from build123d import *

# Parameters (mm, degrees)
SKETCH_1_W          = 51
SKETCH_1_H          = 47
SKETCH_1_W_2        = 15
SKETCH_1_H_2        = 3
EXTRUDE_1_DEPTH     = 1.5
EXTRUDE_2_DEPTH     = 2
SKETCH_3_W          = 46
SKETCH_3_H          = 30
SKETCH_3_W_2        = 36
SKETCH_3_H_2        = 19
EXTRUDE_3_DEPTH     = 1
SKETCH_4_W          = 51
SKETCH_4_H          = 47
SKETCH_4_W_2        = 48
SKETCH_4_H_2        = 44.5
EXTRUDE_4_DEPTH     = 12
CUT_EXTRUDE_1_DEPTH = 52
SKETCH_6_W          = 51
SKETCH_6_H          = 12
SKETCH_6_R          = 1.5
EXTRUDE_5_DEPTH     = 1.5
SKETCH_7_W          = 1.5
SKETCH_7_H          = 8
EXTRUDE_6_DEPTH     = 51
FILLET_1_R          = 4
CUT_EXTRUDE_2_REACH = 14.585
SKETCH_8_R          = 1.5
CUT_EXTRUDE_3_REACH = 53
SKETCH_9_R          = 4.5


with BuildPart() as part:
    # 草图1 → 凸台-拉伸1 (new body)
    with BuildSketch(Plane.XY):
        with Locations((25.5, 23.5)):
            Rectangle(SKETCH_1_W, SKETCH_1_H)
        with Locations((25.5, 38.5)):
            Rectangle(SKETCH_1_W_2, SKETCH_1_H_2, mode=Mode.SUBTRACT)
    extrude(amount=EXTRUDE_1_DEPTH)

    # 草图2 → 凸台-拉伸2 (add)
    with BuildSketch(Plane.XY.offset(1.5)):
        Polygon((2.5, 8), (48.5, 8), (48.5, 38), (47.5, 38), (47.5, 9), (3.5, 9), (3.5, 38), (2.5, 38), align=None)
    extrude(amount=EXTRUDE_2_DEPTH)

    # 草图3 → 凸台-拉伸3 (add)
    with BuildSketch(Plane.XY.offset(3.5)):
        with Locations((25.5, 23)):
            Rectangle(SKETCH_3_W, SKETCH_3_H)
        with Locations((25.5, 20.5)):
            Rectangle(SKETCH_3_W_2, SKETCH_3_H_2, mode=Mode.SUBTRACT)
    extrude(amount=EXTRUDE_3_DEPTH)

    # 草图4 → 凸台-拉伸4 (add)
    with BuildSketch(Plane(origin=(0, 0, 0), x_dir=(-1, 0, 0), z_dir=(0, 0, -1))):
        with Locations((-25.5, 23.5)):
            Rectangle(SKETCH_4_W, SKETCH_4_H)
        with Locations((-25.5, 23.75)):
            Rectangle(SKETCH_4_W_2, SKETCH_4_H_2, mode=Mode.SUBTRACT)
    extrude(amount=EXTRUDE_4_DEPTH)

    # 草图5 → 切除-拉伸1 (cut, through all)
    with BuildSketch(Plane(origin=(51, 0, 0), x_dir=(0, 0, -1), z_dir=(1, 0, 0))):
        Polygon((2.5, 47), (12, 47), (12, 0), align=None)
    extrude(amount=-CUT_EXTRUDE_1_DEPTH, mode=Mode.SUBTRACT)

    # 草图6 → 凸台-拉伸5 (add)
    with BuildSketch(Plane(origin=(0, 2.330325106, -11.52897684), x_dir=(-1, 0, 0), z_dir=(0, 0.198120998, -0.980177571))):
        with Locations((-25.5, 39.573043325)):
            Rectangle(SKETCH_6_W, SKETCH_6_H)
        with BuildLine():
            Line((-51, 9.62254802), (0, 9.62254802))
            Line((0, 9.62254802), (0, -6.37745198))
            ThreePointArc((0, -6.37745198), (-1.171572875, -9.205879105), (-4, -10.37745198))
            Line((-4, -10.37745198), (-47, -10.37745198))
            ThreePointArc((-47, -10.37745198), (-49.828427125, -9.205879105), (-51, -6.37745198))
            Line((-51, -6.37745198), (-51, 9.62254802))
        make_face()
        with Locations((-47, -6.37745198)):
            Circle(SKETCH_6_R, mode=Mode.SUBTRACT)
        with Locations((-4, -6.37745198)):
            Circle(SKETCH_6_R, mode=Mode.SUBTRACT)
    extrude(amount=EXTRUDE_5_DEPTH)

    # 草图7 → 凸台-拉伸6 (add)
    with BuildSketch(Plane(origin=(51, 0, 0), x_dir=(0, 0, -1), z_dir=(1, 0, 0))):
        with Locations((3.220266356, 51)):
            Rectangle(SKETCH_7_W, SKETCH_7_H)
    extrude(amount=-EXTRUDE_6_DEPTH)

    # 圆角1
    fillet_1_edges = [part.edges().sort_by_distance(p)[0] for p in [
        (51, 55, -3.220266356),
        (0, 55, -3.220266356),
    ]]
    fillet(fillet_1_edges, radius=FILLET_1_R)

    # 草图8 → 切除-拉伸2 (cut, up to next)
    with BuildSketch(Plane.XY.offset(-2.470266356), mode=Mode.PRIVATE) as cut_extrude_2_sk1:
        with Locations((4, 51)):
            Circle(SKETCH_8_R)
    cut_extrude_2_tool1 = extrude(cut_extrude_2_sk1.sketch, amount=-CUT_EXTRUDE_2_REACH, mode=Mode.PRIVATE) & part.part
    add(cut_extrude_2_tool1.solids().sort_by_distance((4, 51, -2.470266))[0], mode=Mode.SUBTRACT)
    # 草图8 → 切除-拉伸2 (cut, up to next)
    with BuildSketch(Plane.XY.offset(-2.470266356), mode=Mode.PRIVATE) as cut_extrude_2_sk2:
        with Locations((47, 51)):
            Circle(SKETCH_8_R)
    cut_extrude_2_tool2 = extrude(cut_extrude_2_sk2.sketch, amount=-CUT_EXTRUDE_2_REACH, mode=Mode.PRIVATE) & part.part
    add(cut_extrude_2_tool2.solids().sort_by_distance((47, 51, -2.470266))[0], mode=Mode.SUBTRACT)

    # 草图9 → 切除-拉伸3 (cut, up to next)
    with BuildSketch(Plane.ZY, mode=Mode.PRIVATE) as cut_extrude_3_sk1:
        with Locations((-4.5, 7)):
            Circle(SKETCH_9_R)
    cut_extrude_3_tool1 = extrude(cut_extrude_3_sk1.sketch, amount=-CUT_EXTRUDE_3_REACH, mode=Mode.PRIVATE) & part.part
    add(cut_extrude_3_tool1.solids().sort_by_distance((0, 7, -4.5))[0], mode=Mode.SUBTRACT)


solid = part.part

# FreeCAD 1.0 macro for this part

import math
import FreeCAD as App
import Part
import Sketcher


def edges_at(feature, points):
    """Names of the edges that pass closest to the given points."""
    edges = feature.Shape.Edges
    near = lambda p: min(range(len(edges)), key=lambda i: edges[i].distToShape(Part.Vertex(*p))[0])
    return sorted({f"Edge{near(p) + 1}" for p in points})

doc = App.newDocument("Part")
body = doc.addObject("PartDesign::Body", "Body")

# Sketch on XY plane
sketch1 = doc.addObject("Sketcher::SketchObject", "Sketch")
body.addObject(sketch1)
sketch1.AttachmentSupport = (doc.XY_Plane, [""])
sketch1.MapMode = "FlatFace"
sketch1.addGeometry([
    Part.LineSegment(App.Vector(0, 47, 0), App.Vector(0, 0, 0)),  # 0
    Part.LineSegment(App.Vector(0, 0, 0), App.Vector(51, 0, 0)),  # 1
    Part.LineSegment(App.Vector(51, 0, 0), App.Vector(51, 47, 0)),  # 2
    Part.LineSegment(App.Vector(51, 47, 0), App.Vector(0, 47, 0)),  # 3
    Part.LineSegment(App.Vector(33, 37, 0), App.Vector(18, 37, 0)),  # 4
    Part.LineSegment(App.Vector(18, 37, 0), App.Vector(18, 40, 0)),  # 5
    Part.LineSegment(App.Vector(18, 40, 0), App.Vector(33, 40, 0)),  # 6
    Part.LineSegment(App.Vector(33, 40, 0), App.Vector(33, 37, 0)),  # 7
], False)
sketch1.addConstraint([
    Sketcher.Constraint("Coincident", 0, 2, 1, 1),
    Sketcher.Constraint("Coincident", 1, 2, 2, 1),
    Sketcher.Constraint("Coincident", 2, 2, 3, 1),
    Sketcher.Constraint("Coincident", 3, 2, 0, 1),
    Sketcher.Constraint("Coincident", 4, 2, 5, 1),
    Sketcher.Constraint("Coincident", 5, 2, 6, 1),
    Sketcher.Constraint("Coincident", 6, 2, 7, 1),
    Sketcher.Constraint("Coincident", 7, 2, 4, 1),
    Sketcher.Constraint("Vertical", 0),
    Sketcher.Constraint("Horizontal", 1),
    Sketcher.Constraint("Vertical", 2),
    Sketcher.Constraint("Horizontal", 3),
    Sketcher.Constraint("Horizontal", 4),
    Sketcher.Constraint("Vertical", 5),
    Sketcher.Constraint("Horizontal", 6),
    Sketcher.Constraint("Vertical", 7),
    Sketcher.Constraint("Coincident", 0, 2, -1, 1),
    Sketcher.Constraint("DistanceX", 1, 1, 1, 2, 51.0),
    Sketcher.Constraint("DistanceX", 4, 2, 4, 1, 15.0),
    Sketcher.Constraint("DistanceY", 0, 2, 0, 1, 47.0),
    Sketcher.Constraint("DistanceY", 5, 1, 5, 2, 3.0),
    Sketcher.Constraint("DistanceX", -1, 1, 4, 2, 18.0),
    Sketcher.Constraint("DistanceY", -1, 1, 4, 2, 37.0),
])
pad1 = doc.addObject("PartDesign::Pad", "Pad")
body.addObject(pad1)
pad1.Profile = sketch1
pad1.Length = 1.5

# Sketch on XY plane
sketch2 = doc.addObject("Sketcher::SketchObject", "Sketch001")
body.addObject(sketch2)
sketch2.AttachmentSupport = (doc.XY_Plane, [""])
sketch2.MapMode = "FlatFace"
sketch2.AttachmentOffset = App.Placement(App.Vector(0, 0, 1.5), App.Rotation())
sketch2.addGeometry([
    Part.LineSegment(App.Vector(2.5, 8, 0), App.Vector(48.5, 8, 0)),  # 0
    Part.LineSegment(App.Vector(48.5, 8, 0), App.Vector(48.5, 38, 0)),  # 1
    Part.LineSegment(App.Vector(48.5, 38, 0), App.Vector(47.5, 38, 0)),  # 2
    Part.LineSegment(App.Vector(47.5, 38, 0), App.Vector(47.5, 9, 0)),  # 3
    Part.LineSegment(App.Vector(47.5, 9, 0), App.Vector(3.5, 9, 0)),  # 4
    Part.LineSegment(App.Vector(3.5, 9, 0), App.Vector(3.5, 38, 0)),  # 5
    Part.LineSegment(App.Vector(3.5, 38, 0), App.Vector(2.5, 38, 0)),  # 6
    Part.LineSegment(App.Vector(2.5, 38, 0), App.Vector(2.5, 8, 0)),  # 7
], False)
sketch2.addConstraint([
    Sketcher.Constraint("Coincident", 0, 2, 1, 1),
    Sketcher.Constraint("Coincident", 1, 2, 2, 1),
    Sketcher.Constraint("Coincident", 2, 2, 3, 1),
    Sketcher.Constraint("Coincident", 3, 2, 4, 1),
    Sketcher.Constraint("Coincident", 4, 2, 5, 1),
    Sketcher.Constraint("Coincident", 5, 2, 6, 1),
    Sketcher.Constraint("Coincident", 6, 2, 7, 1),
    Sketcher.Constraint("Coincident", 7, 2, 0, 1),
    Sketcher.Constraint("Horizontal", 0),
    Sketcher.Constraint("Vertical", 1),
    Sketcher.Constraint("Horizontal", 2),
    Sketcher.Constraint("Vertical", 3),
    Sketcher.Constraint("Horizontal", 4),
    Sketcher.Constraint("Vertical", 5),
    Sketcher.Constraint("Horizontal", 6),
    Sketcher.Constraint("Vertical", 7),
    Sketcher.Constraint("Horizontal", 2, 2, 5, 2),
    Sketcher.Constraint("Equal", 2, 6),
    Sketcher.Constraint("DistanceX", 0, 1, 0, 2, 46.0),
    Sketcher.Constraint("DistanceX", 2, 2, 2, 1, 1.0),
    Sketcher.Constraint("DistanceY", 1, 1, 1, 2, 30.0),
    Sketcher.Constraint("DistanceY", 3, 2, 3, 1, 29.0),
    Sketcher.Constraint("DistanceY", -1, 1, 0, 2, 8.0),
    Sketcher.Constraint("DistanceX", -1, 1, 0, 2, 48.5),
])
pad2 = doc.addObject("PartDesign::Pad", "Pad001")
body.addObject(pad2)
pad2.Profile = sketch2
pad2.Length = 2

# Sketch on XY plane
sketch3 = doc.addObject("Sketcher::SketchObject", "Sketch002")
body.addObject(sketch3)
sketch3.AttachmentSupport = (doc.XY_Plane, [""])
sketch3.MapMode = "FlatFace"
sketch3.AttachmentOffset = App.Placement(App.Vector(0, 0, 3.5), App.Rotation())
sketch3.addGeometry([
    Part.LineSegment(App.Vector(2, 38, 0), App.Vector(2, 8, 0)),  # 0
    Part.LineSegment(App.Vector(2, 8, 0), App.Vector(48, 8, 0)),  # 1
    Part.LineSegment(App.Vector(48, 8, 0), App.Vector(48, 38, 0)),  # 2
    Part.LineSegment(App.Vector(48, 38, 0), App.Vector(2, 38, 0)),  # 3
    Part.LineSegment(App.Vector(44, 11, 0), App.Vector(8, 11, 0)),  # 4
    Part.LineSegment(App.Vector(8, 11, 0), App.Vector(8, 30, 0)),  # 5
    Part.LineSegment(App.Vector(8, 30, 0), App.Vector(44, 30, 0)),  # 6
    Part.LineSegment(App.Vector(44, 30, 0), App.Vector(44, 11, 0)),  # 7
], False)
sketch3.addConstraint([
    Sketcher.Constraint("Coincident", 0, 2, 1, 1),
    Sketcher.Constraint("Coincident", 1, 2, 2, 1),
    Sketcher.Constraint("Coincident", 2, 2, 3, 1),
    Sketcher.Constraint("Coincident", 3, 2, 0, 1),
    Sketcher.Constraint("Coincident", 4, 2, 5, 1),
    Sketcher.Constraint("Coincident", 5, 2, 6, 1),
    Sketcher.Constraint("Coincident", 6, 2, 7, 1),
    Sketcher.Constraint("Coincident", 7, 2, 4, 1),
    Sketcher.Constraint("Vertical", 0),
    Sketcher.Constraint("Horizontal", 1),
    Sketcher.Constraint("Vertical", 2),
    Sketcher.Constraint("Horizontal", 3),
    Sketcher.Constraint("Horizontal", 4),
    Sketcher.Constraint("Vertical", 5),
    Sketcher.Constraint("Horizontal", 6),
    Sketcher.Constraint("Vertical", 7),
    Sketcher.Constraint("DistanceX", 1, 1, 1, 2, 46.0),
    Sketcher.Constraint("DistanceX", 4, 2, 4, 1, 36.0),
    Sketcher.Constraint("DistanceY", 0, 2, 0, 1, 30.0),
    Sketcher.Constraint("DistanceY", 5, 1, 5, 2, 19.0),
    Sketcher.Constraint("DistanceY", -1, 1, 0, 2, 8.0),
    Sketcher.Constraint("DistanceY", -1, 1, 4, 2, 11.0),
    Sketcher.Constraint("DistanceX", 0, 2, 4, 2, 5.0),
    Sketcher.Constraint("DistanceX", -1, 1, 0, 2, 2.5),
])
pad3 = doc.addObject("PartDesign::Pad", "Pad002")
body.addObject(pad3)
pad3.Profile = sketch3
pad3.Length = 1

# Sketch on XY plane
sketch4 = doc.addObject("Sketcher::SketchObject", "Sketch003")
body.addObject(sketch4)
sketch4.AttachmentSupport = (doc.XY_Plane, [""])
sketch4.MapMode = "FlatFace"
sketch4.addGeometry([
    Part.LineSegment(App.Vector(51, 47, 0), App.Vector(51, 0, 0)),  # 0
    Part.LineSegment(App.Vector(51, 0, 0), App.Vector(0, 0, 0)),  # 1
    Part.LineSegment(App.Vector(0, 0, 0), App.Vector(0, 47, 0)),  # 2
    Part.LineSegment(App.Vector(0, 47, 0), App.Vector(51, 47, 0)),  # 3
    Part.LineSegment(App.Vector(2, 2, 0), App.Vector(50, 2, 0)),  # 4
    Part.LineSegment(App.Vector(50, 2, 0), App.Vector(50, 46, 0)),  # 5
    Part.LineSegment(App.Vector(50, 46, 0), App.Vector(2, 46, 0)),  # 6
    Part.LineSegment(App.Vector(2, 46, 0), App.Vector(2, 2, 0)),  # 7
], False)
sketch4.addConstraint([
    Sketcher.Constraint("Coincident", 0, 2, 1, 1),
    Sketcher.Constraint("Coincident", 1, 2, 2, 1),
    Sketcher.Constraint("Coincident", 2, 2, 3, 1),
    Sketcher.Constraint("Coincident", 3, 2, 0, 1),
    Sketcher.Constraint("Coincident", 4, 2, 5, 1),
    Sketcher.Constraint("Coincident", 5, 2, 6, 1),
    Sketcher.Constraint("Coincident", 6, 2, 7, 1),
    Sketcher.Constraint("Coincident", 7, 2, 4, 1),
    Sketcher.Constraint("Vertical", 0),
    Sketcher.Constraint("Horizontal", 1),
    Sketcher.Constraint("Vertical", 2),
    Sketcher.Constraint("Horizontal", 3),
    Sketcher.Constraint("Horizontal", 4),
    Sketcher.Constraint("Vertical", 5),
    Sketcher.Constraint("Horizontal", 6),
    Sketcher.Constraint("Vertical", 7),
    Sketcher.Constraint("Coincident", 1, 2, -1, 1),
    Sketcher.Constraint("DistanceX", 1, 2, 1, 1, 51.0),
    Sketcher.Constraint("DistanceX", 4, 1, 4, 2, 48.0),
    Sketcher.Constraint("DistanceY", 0, 2, 0, 1, 47.0),
    Sketcher.Constraint("DistanceY", 5, 1, 5, 2, 44.5),
    Sketcher.Constraint("DistanceY", -1, 1, 5, 2, 46.0),
    Sketcher.Constraint("DistanceX", -1, 1, 4, 2, 49.5),
])
pad4 = doc.addObject("PartDesign::Pad", "Pad003")
body.addObject(pad4)
pad4.Profile = sketch4
pad4.Length = 12
pad4.Reversed = True

# Sketch on YZ plane
sketch5 = doc.addObject("Sketcher::SketchObject", "Sketch004")
body.addObject(sketch5)
sketch5.AttachmentSupport = (doc.YZ_Plane, [""])
sketch5.MapMode = "FlatFace"
sketch5.AttachmentOffset = App.Placement(App.Vector(0, 0, 51), App.Rotation())
sketch5.addGeometry([
    Part.LineSegment(App.Vector(47, -12, 0), App.Vector(47, -2, 0)),
    Part.LineSegment(App.Vector(47, -2, 0), App.Vector(0, -12, 0)),
    Part.LineSegment(App.Vector(0, -12, 0), App.Vector(47, -12, 0)),
], False)
sketch5.addConstraint([
    Sketcher.Constraint("Coincident", 0, 2, 1, 1),
    Sketcher.Constraint("Coincident", 1, 2, 2, 1),
    Sketcher.Constraint("Coincident", 2, 2, 0, 1),
    Sketcher.Constraint("Vertical", 0),
    Sketcher.Constraint("Horizontal", 2),
    Sketcher.Constraint("PointOnObject", 1, 2, -2),
    Sketcher.Constraint("DistanceX", 2, 1, 2, 2, 47.0),
    Sketcher.Constraint("DistanceY", 0, 1, 0, 2, 9.5),
    Sketcher.Constraint("DistanceY", 1, 2, -1, 1, 12.0),
])
pocket1 = doc.addObject("PartDesign::Pocket", "Pocket")
body.addObject(pocket1)
pocket1.Profile = sketch5
pocket1.Type = "ThroughAll"

# Sketch on an angled plane
sketch6 = doc.addObject("Sketcher::SketchObject", "Sketch005")
body.addObject(sketch6)
sketch6.Placement = App.Placement(App.Vector(0, 2.330325, -11.528977), App.Rotation(App.Vector(-1, 0, 0), App.Vector(0, 0.980177571, 0.198120998), App.Vector(0, 0.198120998, -0.980177571), "ZXY"))
sketch6.addGeometry([
    Part.LineSegment(App.Vector(-51, 45.6, 0), App.Vector(-51, 33.6, 0)),  # 0
    Part.LineSegment(App.Vector(-51, 33.6, 0), App.Vector(0, 33.6, 0)),  # 1
    Part.LineSegment(App.Vector(0, 33.6, 0), App.Vector(0, 45.6, 0)),  # 2
    Part.LineSegment(App.Vector(0, 45.6, 0), App.Vector(-51, 45.6, 0)),  # 3
    Part.LineSegment(App.Vector(0, 9.6, 0), App.Vector(-51, 9.6, 0)),  # 4
    Part.LineSegment(App.Vector(-51, 9.6, 0), App.Vector(-51, -6.4, 0)),  # 5
    Part.ArcOfCircle(Part.Circle(App.Vector(-47, -6.4, 0), App.Vector(0, 0, 1), 4), math.radians(180), math.radians(270)),  # 6
    Part.LineSegment(App.Vector(-47, -10.4, 0), App.Vector(-4, -10.4, 0)),  # 7
    Part.ArcOfCircle(Part.Circle(App.Vector(-4, -6.4, 0), App.Vector(0, 0, 1), 4), math.radians(-90), math.radians(0)),  # 8
    Part.LineSegment(App.Vector(0, -6.4, 0), App.Vector(0, 9.6, 0)),  # 9
    Part.Circle(App.Vector(-4, -6.4, 0), App.Vector(0, 0, 1), 1.5),  # 10
    Part.Circle(App.Vector(-47, -6.4, 0), App.Vector(0, 0, 1), 1.5),  # 11
], False)
sketch6.addConstraint([
    Sketcher.Constraint("Coincident", 0, 2, 1, 1),
    Sketcher.Constraint("Coincident", 1, 2, 2, 1),
    Sketcher.Constraint("Coincident", 2, 2, 3, 1),
    Sketcher.Constraint("Coincident", 3, 2, 0, 1),
    Sketcher.Constraint("Coincident", 4, 2, 5, 1),
    Sketcher.Constraint("Tangent", 5, 2, 6, 1),
    Sketcher.Constraint("Tangent", 6, 2, 7, 1),
    Sketcher.Constraint("Tangent", 7, 2, 8, 1),
    Sketcher.Constraint("Tangent", 8, 2, 9, 1),
    Sketcher.Constraint("Coincident", 9, 2, 4, 1),
    Sketcher.Constraint("Vertical", 0),
    Sketcher.Constraint("Horizontal", 1),
    Sketcher.Constraint("Vertical", 2),
    Sketcher.Constraint("Horizontal", 3),
    Sketcher.Constraint("Horizontal", 4),
    Sketcher.Constraint("Vertical", 5),
    Sketcher.Constraint("Horizontal", 7),
    Sketcher.Constraint("Vertical", 9),
    Sketcher.Constraint("Coincident", 10, 3, 8, 3),
    Sketcher.Constraint("Coincident", 11, 3, 6, 3),
    Sketcher.Constraint("Equal", 6, 8),
    Sketcher.Constraint("Equal", 10, 11),
    Sketcher.Constraint("PointOnObject", 1, 2, -2),
    Sketcher.Constraint("PointOnObject", 8, 2, -2),
    Sketcher.Constraint("Vertical", 3, 2, 4, 2),
    Sketcher.Constraint("Diameter", 10, 3.0),
    Sketcher.Constraint("Radius", 6, 4.0),
    Sketcher.Constraint("DistanceX", 1, 1, 1, 2, 51.0),
    Sketcher.Constraint("DistanceY", 0, 2, 0, 1, 12.0),
    Sketcher.Constraint("DistanceY", 5, 2, 5, 1, 16.0),
    Sketcher.Constraint("DistanceY", 6, 3, -1, 1, 6.377452),
    Sketcher.Constraint("DistanceY", -1, 1, 0, 2, 33.573043),
])
pad5 = doc.addObject("PartDesign::Pad", "Pad004")
body.addObject(pad5)
pad5.Profile = sketch6
pad5.Length = 1.5

# Sketch on YZ plane
sketch7 = doc.addObject("Sketcher::SketchObject", "Sketch006")
body.addObject(sketch7)
sketch7.AttachmentSupport = (doc.YZ_Plane, [""])
sketch7.MapMode = "FlatFace"
sketch7.AttachmentOffset = App.Placement(App.Vector(0, 0, 51), App.Rotation())
sketch7.addGeometry([
    Part.LineSegment(App.Vector(55, -2.5, 0), App.Vector(47, -2.5, 0)),
    Part.LineSegment(App.Vector(47, -2.5, 0), App.Vector(47, -4, 0)),
    Part.LineSegment(App.Vector(47, -4, 0), App.Vector(55, -4, 0)),
    Part.LineSegment(App.Vector(55, -4, 0), App.Vector(55, -2.5, 0)),
], False)
sketch7.addConstraint([
    Sketcher.Constraint("Coincident", 0, 2, 1, 1),
    Sketcher.Constraint("Coincident", 1, 2, 2, 1),
    Sketcher.Constraint("Coincident", 2, 2, 3, 1),
    Sketcher.Constraint("Coincident", 3, 2, 0, 1),
    Sketcher.Constraint("Horizontal", 0),
    Sketcher.Constraint("Vertical", 1),
    Sketcher.Constraint("Horizontal", 2),
    Sketcher.Constraint("Vertical", 3),
    Sketcher.Constraint("DistanceX", 0, 2, 0, 1, 8.0),
    Sketcher.Constraint("DistanceY", 1, 2, 1, 1, 1.5),
    Sketcher.Constraint("DistanceX", -1, 1, 0, 2, 47.0),
    Sketcher.Constraint("DistanceY", 0, 2, -1, 1, 2.470266),
])
pad6 = doc.addObject("PartDesign::Pad", "Pad005")
body.addObject(pad6)
pad6.Profile = sketch7
pad6.Length = 51
pad6.Reversed = True
doc.recompute()

fillet = doc.addObject("PartDesign::Fillet", "Fillet")
body.addObject(fillet)
fillet.Base = (pad6, edges_at(pad6, [(51, 55, -3.22), (0, 55, -3.22)]))
fillet.Radius = 4

# Sketch on XY plane
sketch8 = doc.addObject("Sketcher::SketchObject", "Sketch007")
body.addObject(sketch8)
sketch8.AttachmentSupport = (doc.XY_Plane, [""])
sketch8.MapMode = "FlatFace"
sketch8.AttachmentOffset = App.Placement(App.Vector(0, 0, -2.470266), App.Rotation())
sketch8.addGeometry(Part.Circle(App.Vector(4, 51, 0), App.Vector(0, 0, 1), 1.5), False)
sketch8.addConstraint([
    Sketcher.Constraint("Diameter", 0, 3.0),
    Sketcher.Constraint("DistanceX", -1, 1, 0, 3, 4.0),
    Sketcher.Constraint("DistanceY", -1, 1, 0, 3, 51.0),
])
pocket2 = doc.addObject("PartDesign::Pocket", "Pocket001")
body.addObject(pocket2)
pocket2.Profile = sketch8
pocket2.Type = "UpToFirst"

# Sketch on XY plane
sketch9 = doc.addObject("Sketcher::SketchObject", "Sketch008")
body.addObject(sketch9)
sketch9.AttachmentSupport = (doc.XY_Plane, [""])
sketch9.MapMode = "FlatFace"
sketch9.AttachmentOffset = App.Placement(App.Vector(0, 0, -2.470266), App.Rotation())
sketch9.addGeometry(Part.Circle(App.Vector(47, 51, 0), App.Vector(0, 0, 1), 1.5), False)
sketch9.addConstraint([
    Sketcher.Constraint("Diameter", 0, 3.0),
    Sketcher.Constraint("DistanceX", -1, 1, 0, 3, 47.0),
    Sketcher.Constraint("DistanceY", -1, 1, 0, 3, 51.0),
])
pocket3 = doc.addObject("PartDesign::Pocket", "Pocket002")
body.addObject(pocket3)
pocket3.Profile = sketch9
pocket3.Type = "UpToFirst"

# Sketch on YZ plane
sketch10 = doc.addObject("Sketcher::SketchObject", "Sketch009")
body.addObject(sketch10)
sketch10.AttachmentSupport = (doc.YZ_Plane, [""])
sketch10.MapMode = "FlatFace"
sketch10.addGeometry(Part.Circle(App.Vector(7, -4.5, 0), App.Vector(0, 0, 1), 4.5), False)
sketch10.addConstraint([
    Sketcher.Constraint("Diameter", 0, 9.0),
    Sketcher.Constraint("DistanceX", -1, 1, 0, 3, 7.0),
    Sketcher.Constraint("DistanceY", 0, 3, -1, 1, 4.5),
])
pocket4 = doc.addObject("PartDesign::Pocket", "Pocket003")
body.addObject(pocket4)
pocket4.Profile = sketch10
pocket4.Type = "UpToFirst"
pocket4.Reversed = True

doc.recompute()
